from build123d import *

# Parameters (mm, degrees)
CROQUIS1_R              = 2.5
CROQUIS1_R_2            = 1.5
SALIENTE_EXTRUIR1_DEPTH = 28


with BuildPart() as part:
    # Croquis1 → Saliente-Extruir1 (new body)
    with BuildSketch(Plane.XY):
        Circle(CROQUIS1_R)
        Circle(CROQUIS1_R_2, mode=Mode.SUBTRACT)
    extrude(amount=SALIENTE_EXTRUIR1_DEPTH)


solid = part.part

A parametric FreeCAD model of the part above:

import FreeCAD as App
import Part
import Sketcher

V = App.Vector

doc = App.newDocument("Part")
body = doc.addObject("PartDesign::Body", "Body")

# Sketch on XY plane
sketch1 = body.newObject("Sketcher::SketchObject", "Sketch")
sketch1.AttachmentSupport = (doc.getObject("XY_Plane"), [""])
sketch1.MapMode = "FlatFace"
sketch1.addGeometry([
    Part.Circle(V(0, 0, 0), V(0, 0, 1), 2.5),
    Part.Circle(V(0, 0, 0), V(0, 0, 1), 1.5),
], False)
sketch1.addConstraint([
    Sketcher.Constraint("Coincident", 0, 3, -1, 1),
    Sketcher.Constraint("Coincident", 1, 3, -1, 1),
    Sketcher.Constraint("Diameter", 0, 5.0),
    Sketcher.Constraint("Diameter", 1, 3.0),
])
pad1 = body.newObject("PartDesign::Pad", "Pad")
pad1.Profile = sketch1
pad1.Length = 28

doc.recompute()
